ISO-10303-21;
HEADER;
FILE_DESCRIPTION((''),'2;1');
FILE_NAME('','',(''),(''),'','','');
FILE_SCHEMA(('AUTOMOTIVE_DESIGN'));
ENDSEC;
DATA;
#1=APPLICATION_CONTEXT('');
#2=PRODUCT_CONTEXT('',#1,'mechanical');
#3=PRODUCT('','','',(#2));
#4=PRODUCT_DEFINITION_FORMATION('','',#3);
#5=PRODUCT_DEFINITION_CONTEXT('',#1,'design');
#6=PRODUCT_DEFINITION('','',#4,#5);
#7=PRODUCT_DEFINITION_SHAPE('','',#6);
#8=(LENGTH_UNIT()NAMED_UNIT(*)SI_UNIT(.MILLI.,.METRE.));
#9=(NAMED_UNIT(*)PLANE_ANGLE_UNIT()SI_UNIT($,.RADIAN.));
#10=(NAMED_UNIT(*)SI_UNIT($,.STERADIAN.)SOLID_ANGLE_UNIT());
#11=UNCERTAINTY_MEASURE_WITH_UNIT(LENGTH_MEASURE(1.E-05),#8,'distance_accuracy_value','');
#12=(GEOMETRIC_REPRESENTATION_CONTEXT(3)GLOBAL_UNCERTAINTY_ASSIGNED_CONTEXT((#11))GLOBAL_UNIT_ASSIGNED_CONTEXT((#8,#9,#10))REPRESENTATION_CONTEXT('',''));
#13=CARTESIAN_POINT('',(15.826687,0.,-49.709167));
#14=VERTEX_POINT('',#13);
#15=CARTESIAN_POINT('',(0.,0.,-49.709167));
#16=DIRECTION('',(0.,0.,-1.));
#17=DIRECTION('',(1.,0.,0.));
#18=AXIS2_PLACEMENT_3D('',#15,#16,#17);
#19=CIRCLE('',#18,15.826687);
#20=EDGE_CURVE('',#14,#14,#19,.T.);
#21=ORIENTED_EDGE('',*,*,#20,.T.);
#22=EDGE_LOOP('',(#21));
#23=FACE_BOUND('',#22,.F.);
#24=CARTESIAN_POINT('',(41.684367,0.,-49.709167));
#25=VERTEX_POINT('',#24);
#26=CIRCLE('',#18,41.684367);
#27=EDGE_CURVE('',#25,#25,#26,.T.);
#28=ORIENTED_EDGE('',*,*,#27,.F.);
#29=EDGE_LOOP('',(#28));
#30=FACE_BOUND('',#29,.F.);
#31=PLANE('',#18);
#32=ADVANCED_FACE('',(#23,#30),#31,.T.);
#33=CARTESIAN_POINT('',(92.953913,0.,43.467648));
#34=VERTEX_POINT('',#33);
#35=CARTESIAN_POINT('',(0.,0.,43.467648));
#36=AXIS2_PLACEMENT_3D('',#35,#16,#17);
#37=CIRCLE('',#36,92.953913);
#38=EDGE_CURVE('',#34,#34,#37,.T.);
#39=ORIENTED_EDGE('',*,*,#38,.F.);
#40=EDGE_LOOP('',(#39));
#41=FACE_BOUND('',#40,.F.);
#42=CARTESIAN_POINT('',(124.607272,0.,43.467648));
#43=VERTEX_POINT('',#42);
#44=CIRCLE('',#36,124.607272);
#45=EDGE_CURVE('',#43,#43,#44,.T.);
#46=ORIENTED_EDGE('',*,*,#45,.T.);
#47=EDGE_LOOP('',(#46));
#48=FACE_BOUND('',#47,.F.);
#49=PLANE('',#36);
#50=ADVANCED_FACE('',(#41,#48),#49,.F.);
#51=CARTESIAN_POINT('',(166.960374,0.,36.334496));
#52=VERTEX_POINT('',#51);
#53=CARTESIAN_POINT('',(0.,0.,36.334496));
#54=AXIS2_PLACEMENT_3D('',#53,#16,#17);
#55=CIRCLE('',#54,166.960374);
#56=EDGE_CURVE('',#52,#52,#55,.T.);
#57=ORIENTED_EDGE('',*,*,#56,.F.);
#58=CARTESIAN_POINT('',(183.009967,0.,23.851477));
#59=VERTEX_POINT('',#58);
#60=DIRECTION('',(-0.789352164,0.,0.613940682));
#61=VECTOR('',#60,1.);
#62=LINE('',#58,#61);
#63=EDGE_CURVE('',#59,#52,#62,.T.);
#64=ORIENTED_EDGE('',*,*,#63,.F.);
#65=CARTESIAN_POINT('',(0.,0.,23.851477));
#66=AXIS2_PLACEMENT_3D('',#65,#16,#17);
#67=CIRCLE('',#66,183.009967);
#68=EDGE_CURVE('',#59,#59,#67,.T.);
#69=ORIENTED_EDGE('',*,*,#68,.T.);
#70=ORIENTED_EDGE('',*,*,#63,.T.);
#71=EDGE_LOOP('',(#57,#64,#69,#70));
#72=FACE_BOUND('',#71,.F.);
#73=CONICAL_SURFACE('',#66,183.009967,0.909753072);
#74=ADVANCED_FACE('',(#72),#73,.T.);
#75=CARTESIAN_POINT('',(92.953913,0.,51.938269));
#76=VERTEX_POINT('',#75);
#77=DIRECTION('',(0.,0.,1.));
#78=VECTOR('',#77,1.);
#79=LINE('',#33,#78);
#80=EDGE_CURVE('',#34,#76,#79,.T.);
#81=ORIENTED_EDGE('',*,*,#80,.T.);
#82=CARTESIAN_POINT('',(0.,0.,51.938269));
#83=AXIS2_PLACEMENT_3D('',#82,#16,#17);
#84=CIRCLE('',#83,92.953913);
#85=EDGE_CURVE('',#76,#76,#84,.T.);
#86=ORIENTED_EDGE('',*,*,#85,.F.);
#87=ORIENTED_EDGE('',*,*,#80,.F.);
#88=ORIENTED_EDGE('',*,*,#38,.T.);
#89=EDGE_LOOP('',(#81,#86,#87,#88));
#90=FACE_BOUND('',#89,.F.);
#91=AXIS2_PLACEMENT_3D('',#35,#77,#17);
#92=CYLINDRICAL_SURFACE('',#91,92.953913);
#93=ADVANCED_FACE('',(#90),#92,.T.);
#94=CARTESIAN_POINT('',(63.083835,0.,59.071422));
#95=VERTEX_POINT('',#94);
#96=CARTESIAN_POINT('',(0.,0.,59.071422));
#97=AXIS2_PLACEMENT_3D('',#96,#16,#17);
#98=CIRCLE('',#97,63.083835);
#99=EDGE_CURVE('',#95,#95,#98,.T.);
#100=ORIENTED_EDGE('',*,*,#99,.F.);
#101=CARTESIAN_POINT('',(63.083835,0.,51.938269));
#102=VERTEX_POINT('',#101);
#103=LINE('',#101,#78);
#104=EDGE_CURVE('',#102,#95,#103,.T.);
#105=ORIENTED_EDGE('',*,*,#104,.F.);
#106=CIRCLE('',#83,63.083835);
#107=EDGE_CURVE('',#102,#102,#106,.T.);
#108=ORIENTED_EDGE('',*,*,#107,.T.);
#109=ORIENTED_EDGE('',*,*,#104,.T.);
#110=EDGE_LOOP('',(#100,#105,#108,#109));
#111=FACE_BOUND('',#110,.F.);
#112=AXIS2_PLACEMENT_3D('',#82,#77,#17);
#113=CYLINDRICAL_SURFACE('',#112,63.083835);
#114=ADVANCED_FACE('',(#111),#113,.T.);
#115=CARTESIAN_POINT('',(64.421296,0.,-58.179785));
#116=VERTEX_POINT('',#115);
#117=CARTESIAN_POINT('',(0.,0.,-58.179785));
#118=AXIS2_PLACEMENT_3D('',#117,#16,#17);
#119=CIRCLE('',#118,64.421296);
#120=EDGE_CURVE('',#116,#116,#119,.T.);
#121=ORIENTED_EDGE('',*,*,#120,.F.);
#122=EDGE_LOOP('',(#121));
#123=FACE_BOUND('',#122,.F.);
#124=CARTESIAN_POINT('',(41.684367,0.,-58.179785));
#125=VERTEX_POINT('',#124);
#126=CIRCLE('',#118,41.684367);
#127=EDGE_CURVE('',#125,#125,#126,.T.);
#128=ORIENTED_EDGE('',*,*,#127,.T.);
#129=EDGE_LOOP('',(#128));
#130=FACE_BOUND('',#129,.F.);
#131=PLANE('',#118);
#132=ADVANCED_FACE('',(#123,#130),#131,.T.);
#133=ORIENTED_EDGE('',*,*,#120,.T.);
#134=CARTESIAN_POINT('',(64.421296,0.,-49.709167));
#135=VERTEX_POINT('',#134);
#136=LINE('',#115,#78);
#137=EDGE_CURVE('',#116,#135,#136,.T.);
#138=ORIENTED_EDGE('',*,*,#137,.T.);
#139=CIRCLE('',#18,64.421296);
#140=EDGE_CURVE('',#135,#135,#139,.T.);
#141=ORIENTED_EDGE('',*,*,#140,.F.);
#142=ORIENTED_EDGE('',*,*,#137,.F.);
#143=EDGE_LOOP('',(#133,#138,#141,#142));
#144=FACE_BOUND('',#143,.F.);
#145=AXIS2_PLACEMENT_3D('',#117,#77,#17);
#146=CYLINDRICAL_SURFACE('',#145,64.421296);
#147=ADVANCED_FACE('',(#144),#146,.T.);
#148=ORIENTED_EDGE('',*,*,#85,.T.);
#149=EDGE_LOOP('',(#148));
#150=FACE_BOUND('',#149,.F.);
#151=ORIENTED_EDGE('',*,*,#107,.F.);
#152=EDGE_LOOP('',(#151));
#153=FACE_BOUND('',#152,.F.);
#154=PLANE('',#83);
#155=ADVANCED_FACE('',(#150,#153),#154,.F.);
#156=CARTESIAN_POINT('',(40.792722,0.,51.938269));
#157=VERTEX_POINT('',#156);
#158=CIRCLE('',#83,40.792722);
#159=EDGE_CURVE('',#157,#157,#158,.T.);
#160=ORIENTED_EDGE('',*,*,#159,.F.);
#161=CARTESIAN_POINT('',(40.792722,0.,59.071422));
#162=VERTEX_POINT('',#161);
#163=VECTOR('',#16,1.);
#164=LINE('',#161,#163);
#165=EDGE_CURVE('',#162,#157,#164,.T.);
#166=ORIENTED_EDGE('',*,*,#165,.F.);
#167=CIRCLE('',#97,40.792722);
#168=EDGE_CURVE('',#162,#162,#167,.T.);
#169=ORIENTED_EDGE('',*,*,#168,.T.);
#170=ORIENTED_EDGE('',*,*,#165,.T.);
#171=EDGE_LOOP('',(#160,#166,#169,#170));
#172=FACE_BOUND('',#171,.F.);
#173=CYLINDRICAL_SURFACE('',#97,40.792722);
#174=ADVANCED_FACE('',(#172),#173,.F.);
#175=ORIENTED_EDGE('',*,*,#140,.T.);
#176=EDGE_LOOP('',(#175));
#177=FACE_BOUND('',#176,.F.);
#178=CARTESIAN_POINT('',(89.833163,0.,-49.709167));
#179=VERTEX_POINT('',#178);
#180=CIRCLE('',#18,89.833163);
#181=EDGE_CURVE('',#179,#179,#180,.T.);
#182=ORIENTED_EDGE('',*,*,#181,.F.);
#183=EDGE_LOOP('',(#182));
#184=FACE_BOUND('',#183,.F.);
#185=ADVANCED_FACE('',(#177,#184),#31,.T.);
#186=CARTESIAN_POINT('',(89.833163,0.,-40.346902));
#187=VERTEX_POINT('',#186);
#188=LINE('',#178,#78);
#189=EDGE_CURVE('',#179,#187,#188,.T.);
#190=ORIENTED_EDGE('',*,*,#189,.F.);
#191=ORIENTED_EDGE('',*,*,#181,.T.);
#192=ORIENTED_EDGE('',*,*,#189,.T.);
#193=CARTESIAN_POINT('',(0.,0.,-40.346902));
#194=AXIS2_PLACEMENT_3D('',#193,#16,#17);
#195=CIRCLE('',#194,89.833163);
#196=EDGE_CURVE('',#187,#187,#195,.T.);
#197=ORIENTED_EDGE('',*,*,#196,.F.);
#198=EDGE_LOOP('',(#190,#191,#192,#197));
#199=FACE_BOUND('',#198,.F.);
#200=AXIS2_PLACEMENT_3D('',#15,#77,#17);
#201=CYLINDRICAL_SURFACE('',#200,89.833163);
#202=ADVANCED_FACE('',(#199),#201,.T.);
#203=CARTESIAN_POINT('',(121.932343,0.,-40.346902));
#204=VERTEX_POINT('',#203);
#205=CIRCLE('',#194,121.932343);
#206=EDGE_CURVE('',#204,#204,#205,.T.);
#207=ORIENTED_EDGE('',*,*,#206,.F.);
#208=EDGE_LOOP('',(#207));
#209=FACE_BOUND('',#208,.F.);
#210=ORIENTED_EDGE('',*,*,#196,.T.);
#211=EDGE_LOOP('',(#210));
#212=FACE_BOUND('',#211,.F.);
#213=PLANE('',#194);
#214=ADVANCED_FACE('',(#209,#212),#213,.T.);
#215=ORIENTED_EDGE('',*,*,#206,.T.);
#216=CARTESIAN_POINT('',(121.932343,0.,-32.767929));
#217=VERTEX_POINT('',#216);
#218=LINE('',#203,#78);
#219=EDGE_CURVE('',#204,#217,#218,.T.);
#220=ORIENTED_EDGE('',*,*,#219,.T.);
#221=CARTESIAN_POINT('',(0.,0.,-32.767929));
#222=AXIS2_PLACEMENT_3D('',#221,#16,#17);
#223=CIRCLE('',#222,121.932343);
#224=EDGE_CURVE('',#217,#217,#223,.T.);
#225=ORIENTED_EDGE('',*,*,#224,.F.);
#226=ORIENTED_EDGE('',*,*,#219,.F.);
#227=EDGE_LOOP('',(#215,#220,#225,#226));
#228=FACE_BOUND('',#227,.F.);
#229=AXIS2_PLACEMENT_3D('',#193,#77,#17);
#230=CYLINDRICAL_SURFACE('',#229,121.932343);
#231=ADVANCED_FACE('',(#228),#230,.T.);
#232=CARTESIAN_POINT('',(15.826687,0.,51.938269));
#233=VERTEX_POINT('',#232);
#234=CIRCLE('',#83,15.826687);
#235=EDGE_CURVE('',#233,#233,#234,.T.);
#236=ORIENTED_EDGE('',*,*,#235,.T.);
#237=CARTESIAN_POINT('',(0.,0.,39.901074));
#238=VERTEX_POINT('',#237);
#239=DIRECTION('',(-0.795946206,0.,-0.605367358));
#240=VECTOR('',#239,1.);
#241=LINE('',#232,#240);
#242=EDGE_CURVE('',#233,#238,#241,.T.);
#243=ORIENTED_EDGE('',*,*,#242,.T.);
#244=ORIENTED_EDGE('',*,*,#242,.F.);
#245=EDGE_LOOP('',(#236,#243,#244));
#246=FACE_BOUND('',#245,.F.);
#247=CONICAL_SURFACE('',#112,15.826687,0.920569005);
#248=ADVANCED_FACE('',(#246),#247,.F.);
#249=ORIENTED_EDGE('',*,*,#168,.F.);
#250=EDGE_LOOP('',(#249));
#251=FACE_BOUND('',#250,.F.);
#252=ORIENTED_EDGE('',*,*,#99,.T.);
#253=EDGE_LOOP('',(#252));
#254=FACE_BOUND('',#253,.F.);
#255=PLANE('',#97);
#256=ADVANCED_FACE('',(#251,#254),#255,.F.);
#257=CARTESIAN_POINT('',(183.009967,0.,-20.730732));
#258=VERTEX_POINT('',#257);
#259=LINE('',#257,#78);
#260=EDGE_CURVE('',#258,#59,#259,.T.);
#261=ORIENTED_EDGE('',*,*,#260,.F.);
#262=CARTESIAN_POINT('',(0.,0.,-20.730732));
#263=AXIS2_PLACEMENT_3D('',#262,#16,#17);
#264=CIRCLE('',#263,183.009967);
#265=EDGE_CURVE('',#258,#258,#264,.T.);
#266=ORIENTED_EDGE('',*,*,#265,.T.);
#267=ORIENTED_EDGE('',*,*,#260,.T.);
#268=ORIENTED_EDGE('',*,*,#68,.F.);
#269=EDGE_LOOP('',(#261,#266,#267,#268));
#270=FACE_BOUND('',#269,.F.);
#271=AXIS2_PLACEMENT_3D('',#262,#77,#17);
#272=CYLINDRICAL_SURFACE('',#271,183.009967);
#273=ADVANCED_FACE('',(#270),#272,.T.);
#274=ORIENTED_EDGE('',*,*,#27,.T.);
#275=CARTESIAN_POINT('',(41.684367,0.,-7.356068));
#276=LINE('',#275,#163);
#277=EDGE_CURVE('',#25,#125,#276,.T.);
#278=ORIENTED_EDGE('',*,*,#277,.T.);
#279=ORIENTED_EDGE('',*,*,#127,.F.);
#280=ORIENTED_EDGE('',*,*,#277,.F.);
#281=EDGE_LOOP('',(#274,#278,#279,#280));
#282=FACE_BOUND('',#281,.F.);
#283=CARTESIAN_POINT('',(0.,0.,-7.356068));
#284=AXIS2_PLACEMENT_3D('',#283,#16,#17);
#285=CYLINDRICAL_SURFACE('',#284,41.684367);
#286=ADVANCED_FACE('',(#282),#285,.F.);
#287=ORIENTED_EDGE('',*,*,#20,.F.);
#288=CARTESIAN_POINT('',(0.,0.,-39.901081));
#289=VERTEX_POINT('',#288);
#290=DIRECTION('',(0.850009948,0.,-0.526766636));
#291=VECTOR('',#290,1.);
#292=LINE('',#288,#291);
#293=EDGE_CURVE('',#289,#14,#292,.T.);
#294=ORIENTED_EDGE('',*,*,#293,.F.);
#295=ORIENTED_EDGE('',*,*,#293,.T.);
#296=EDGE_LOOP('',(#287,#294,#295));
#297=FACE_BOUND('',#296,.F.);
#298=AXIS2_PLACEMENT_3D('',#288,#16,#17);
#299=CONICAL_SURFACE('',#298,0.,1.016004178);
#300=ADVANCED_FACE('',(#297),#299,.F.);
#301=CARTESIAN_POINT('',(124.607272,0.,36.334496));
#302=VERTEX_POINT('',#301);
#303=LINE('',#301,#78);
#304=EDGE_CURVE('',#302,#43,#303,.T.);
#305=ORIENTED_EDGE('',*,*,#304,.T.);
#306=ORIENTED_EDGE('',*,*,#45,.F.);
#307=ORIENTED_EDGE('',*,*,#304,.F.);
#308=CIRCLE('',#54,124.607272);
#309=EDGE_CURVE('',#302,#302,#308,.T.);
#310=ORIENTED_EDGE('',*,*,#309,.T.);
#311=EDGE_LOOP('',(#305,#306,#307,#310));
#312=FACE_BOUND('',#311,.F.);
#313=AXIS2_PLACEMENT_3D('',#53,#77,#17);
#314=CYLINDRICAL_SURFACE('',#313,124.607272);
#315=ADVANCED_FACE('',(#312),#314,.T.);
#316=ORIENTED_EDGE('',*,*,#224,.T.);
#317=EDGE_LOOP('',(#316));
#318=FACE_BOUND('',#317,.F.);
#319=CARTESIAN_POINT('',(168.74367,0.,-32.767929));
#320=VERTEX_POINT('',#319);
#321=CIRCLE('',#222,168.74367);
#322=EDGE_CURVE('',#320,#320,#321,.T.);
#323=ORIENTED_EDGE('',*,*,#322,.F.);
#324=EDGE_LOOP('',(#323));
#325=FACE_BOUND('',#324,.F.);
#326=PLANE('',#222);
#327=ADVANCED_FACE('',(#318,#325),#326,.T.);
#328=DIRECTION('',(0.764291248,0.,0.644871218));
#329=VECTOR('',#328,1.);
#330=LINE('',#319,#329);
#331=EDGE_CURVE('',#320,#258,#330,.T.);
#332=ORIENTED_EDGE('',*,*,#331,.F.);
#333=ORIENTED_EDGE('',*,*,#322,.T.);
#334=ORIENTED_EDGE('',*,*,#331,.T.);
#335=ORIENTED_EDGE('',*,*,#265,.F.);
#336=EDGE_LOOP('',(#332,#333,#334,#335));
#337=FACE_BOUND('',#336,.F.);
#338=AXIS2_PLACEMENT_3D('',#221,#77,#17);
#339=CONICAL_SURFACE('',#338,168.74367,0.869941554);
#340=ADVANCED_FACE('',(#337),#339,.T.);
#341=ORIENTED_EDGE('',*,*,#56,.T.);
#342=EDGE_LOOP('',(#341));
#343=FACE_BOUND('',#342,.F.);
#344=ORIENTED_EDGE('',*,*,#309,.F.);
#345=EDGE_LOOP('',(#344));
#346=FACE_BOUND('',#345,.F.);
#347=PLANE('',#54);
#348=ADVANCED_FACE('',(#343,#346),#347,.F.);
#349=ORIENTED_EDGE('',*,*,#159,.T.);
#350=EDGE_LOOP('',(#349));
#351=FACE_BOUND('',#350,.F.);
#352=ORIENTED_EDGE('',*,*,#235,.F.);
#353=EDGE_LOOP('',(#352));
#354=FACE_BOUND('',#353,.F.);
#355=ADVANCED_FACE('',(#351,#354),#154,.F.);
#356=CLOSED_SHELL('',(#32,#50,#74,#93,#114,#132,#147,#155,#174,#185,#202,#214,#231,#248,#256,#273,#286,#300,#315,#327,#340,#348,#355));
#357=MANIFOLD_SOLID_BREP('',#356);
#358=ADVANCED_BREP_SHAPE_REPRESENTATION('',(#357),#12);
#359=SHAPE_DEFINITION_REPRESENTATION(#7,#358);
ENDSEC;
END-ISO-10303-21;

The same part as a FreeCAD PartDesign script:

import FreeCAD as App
import Part
import Sketcher
from FreeCAD import Vector

doc = App.newDocument("Part")
body = doc.addObject("PartDesign::Body", "Body")

# Sketch on XZ plane
sketch1 = body.newObject("Sketcher::SketchObject", "Sketch")
sketch1.AttachmentSupport = (doc.getObject("XZ_Plane"), [""])
sketch1.MapMode = "FlatFace"
sketch1.addGeometry([
    Part.LineSegment(Vector(42, -50, 0), Vector(42, -58, 0)),  # 0
    Part.LineSegment(Vector(42, -58, 0), Vector(64, -58, 0)),  # 1
    Part.LineSegment(Vector(64, -58, 0), Vector(64, -50, 0)),  # 2
    Part.LineSegment(Vector(64, -50, 0), Vector(90, -50, 0)),  # 3
    Part.LineSegment(Vector(90, -50, 0), Vector(90, -40, 0)),  # 4
    Part.LineSegment(Vector(90, -40, 0), Vector(122, -40, 0)),  # 5
    Part.LineSegment(Vector(122, -40, 0), Vector(122, -33, 0)),  # 6
    Part.LineSegment(Vector(122, -33, 0), Vector(169, -33, 0)),  # 7
    Part.LineSegment(Vector(169, -33, 0), Vector(183, -21, 0)),  # 8
    Part.LineSegment(Vector(183, -21, 0), Vector(183, 24, 0)),  # 9
    Part.LineSegment(Vector(183, 24, 0), Vector(167, 36, 0)),  # 10
    Part.LineSegment(Vector(167, 36, 0), Vector(125, 36, 0)),  # 11
    Part.LineSegment(Vector(125, 36, 0), Vector(125, 43, 0)),  # 12
    Part.LineSegment(Vector(125, 43, 0), Vector(93, 43, 0)),  # 13
    Part.LineSegment(Vector(93, 43, 0), Vector(93, 52, 0)),  # 14
    Part.LineSegment(Vector(93, 52, 0), Vector(63, 52, 0)),  # 15
    Part.LineSegment(Vector(63, 52, 0), Vector(63, 59, 0)),  # 16
    Part.LineSegment(Vector(63, 59, 0), Vector(41, 59, 0)),  # 17
    Part.LineSegment(Vector(41, 59, 0), Vector(41, 52, 0)),  # 18
    Part.LineSegment(Vector(41, 52, 0), Vector(16, 52, 0)),  # 19
    Part.LineSegment(Vector(16, 52, 0), Vector(0, 40, 0)),  # 20
    Part.LineSegment(Vector(0, 40, 0), Vector(0, -40, 0)),  # 21
    Part.LineSegment(Vector(0, -40, 0), Vector(16, -50, 0)),  # 22
    Part.LineSegment(Vector(16, -50, 0), Vector(42, -50, 0)),  # 23
], False)
sketch1.addConstraint([
    Sketcher.Constraint("Coincident", 0, 2, 1, 1),
    Sketcher.Constraint("Coincident", 1, 2, 2, 1),
    Sketcher.Constraint("Coincident", 2, 2, 3, 1),
    Sketcher.Constraint("Coincident", 3, 2, 4, 1),
    Sketcher.Constraint("Coincident", 4, 2, 5, 1),
    Sketcher.Constraint("Coincident", 5, 2, 6, 1),
    Sketcher.Constraint("Coincident", 6, 2, 7, 1),
    Sketcher.Constraint("Coincident", 7, 2, 8, 1),
    Sketcher.Constraint("Coincident", 8, 2, 9, 1),
    Sketcher.Constraint("Coincident", 9, 2, 10, 1),
    Sketcher.Constraint("Coincident", 10, 2, 11, 1),
    Sketcher.Constraint("Coincident", 11, 2, 12, 1),
    Sketcher.Constraint("Coincident", 12, 2, 13, 1),
    Sketcher.Constraint("Coincident", 13, 2, 14, 1),
    Sketcher.Constraint("Coincident", 14, 2, 15, 1),
    Sketcher.Constraint("Coincident", 15, 2, 16, 1),
    Sketcher.Constraint("Coincident", 16, 2, 17, 1),
    Sketcher.Constraint("Coincident", 17, 2, 18, 1),
    Sketcher.Constraint("Coincident", 18, 2, 19, 1),
    Sketcher.Constraint("Coincident", 19, 2, 20, 1),
    Sketcher.Constraint("Coincident", 20, 2, 21, 1),
    Sketcher.Constraint("Coincident", 21, 2, 22, 1),
    Sketcher.Constraint("Coincident", 22, 2, 23, 1),
    Sketcher.Constraint("Coincident", 23, 2, 0, 1),
    Sketcher.Constraint("Vertical", 0),
    Sketcher.Constraint("Horizontal", 1),
    Sketcher.Constraint("Vertical", 2),
    Sketcher.Constraint("Horizontal", 3),
    Sketcher.Constraint("Vertical", 4),
    Sketcher.Constraint("Horizontal", 5),
    Sketcher.Constraint("Vertical", 6),
    Sketcher.Constraint("Horizontal", 7),
    Sketcher.Constraint("Vertical", 9),
    Sketcher.Constraint("Horizontal", 11),
    Sketcher.Constraint("Vertical", 12),
    Sketcher.Constraint("Horizontal", 13),
    Sketcher.Constraint("Vertical", 14),
    Sketcher.Constraint("Horizontal", 15),
    Sketcher.Constraint("Vertical", 16),
    Sketcher.Constraint("Horizontal", 17),
    Sketcher.Constraint("Vertical", 18),
    Sketcher.Constraint("Horizontal", 19),
    Sketcher.Constraint("Vertical", 21),
    Sketcher.Constraint("Horizontal", 23),
    Sketcher.Constraint("Symmetric", 20, 2, 21, 2, -1, 1),
    Sketcher.Constraint("Horizontal", 15, 2, 18, 2),
    Sketcher.Constraint("Horizontal", 3, 2, 22, 2),
    Sketcher.Constraint("Vertical", 19, 2, 22, 2),
    Sketcher.Constraint("Equal", 12, 16),
    Sketcher.Constraint("DistanceX", 1, 1, 1, 2, 22.736929),
    Sketcher.Constraint("DistanceX", 5, 1, 5, 2, 32.09918),
    Sketcher.Constraint("DistanceX", 13, 2, 13, 1, 31.653359),
    Sketcher.Constraint("DistanceX", 23, 1, 23, 2, 25.85768),
    Sketcher.Constraint("DistanceY", 0, 2, 0, 1, 8.470618),
    Sketcher.Constraint("DistanceY", 9, 1, 9, 2, 44.582209),
    Sketcher.Constraint("DistanceY", 12, 1, 12, 2, 7.133152),
    Sketcher.Constraint("DistanceY", 14, 1, 14, 2, 8.470621),
    Sketcher.Constraint("DistanceY", 5, 2, 10, 2, 76.681398),
    Sketcher.Constraint("DistanceY", 6, 2, 14, 2, 84.706198),
    Sketcher.Constraint("DistanceX", 3, 1, 3, 2, 25.411867),
    Sketcher.Constraint("DistanceX", 7, 1, 7, 2, 46.811327),
    Sketcher.Constraint("DistanceX", 11, 2, 11, 1, 42.353102),
    Sketcher.Constraint("DistanceX", 15, 2, 15, 1, 29.870078),
    Sketcher.Constraint("DistanceX", 17, 2, 17, 1, 22.291113),
    Sketcher.Constraint("DistanceX", 19, 2, 19, 1, 24.966035),
    Sketcher.Constraint("DistanceY", 4, 1, 4, 2, 9.362265),
    Sketcher.Constraint("DistanceY", 21, 2, 21, 1, 79.802155),
    Sketcher.Constraint("DistanceY", 6, 2, -1, 1, 32.767929),
    Sketcher.Constraint("DistanceX", -1, 1, 7, 2, 168.74367),
    Sketcher.Constraint("DistanceY", 8, 2, -1, 1, 20.730732),
    Sketcher.Constraint("Distance", 8, 18.666048),
])
revolution = body.newObject("PartDesign::Revolution", "Revolution")
revolution.Profile = sketch1
revolution.ReferenceAxis = (sketch1, ["V_Axis"])
revolution.Angle = 360

doc.recompute()
